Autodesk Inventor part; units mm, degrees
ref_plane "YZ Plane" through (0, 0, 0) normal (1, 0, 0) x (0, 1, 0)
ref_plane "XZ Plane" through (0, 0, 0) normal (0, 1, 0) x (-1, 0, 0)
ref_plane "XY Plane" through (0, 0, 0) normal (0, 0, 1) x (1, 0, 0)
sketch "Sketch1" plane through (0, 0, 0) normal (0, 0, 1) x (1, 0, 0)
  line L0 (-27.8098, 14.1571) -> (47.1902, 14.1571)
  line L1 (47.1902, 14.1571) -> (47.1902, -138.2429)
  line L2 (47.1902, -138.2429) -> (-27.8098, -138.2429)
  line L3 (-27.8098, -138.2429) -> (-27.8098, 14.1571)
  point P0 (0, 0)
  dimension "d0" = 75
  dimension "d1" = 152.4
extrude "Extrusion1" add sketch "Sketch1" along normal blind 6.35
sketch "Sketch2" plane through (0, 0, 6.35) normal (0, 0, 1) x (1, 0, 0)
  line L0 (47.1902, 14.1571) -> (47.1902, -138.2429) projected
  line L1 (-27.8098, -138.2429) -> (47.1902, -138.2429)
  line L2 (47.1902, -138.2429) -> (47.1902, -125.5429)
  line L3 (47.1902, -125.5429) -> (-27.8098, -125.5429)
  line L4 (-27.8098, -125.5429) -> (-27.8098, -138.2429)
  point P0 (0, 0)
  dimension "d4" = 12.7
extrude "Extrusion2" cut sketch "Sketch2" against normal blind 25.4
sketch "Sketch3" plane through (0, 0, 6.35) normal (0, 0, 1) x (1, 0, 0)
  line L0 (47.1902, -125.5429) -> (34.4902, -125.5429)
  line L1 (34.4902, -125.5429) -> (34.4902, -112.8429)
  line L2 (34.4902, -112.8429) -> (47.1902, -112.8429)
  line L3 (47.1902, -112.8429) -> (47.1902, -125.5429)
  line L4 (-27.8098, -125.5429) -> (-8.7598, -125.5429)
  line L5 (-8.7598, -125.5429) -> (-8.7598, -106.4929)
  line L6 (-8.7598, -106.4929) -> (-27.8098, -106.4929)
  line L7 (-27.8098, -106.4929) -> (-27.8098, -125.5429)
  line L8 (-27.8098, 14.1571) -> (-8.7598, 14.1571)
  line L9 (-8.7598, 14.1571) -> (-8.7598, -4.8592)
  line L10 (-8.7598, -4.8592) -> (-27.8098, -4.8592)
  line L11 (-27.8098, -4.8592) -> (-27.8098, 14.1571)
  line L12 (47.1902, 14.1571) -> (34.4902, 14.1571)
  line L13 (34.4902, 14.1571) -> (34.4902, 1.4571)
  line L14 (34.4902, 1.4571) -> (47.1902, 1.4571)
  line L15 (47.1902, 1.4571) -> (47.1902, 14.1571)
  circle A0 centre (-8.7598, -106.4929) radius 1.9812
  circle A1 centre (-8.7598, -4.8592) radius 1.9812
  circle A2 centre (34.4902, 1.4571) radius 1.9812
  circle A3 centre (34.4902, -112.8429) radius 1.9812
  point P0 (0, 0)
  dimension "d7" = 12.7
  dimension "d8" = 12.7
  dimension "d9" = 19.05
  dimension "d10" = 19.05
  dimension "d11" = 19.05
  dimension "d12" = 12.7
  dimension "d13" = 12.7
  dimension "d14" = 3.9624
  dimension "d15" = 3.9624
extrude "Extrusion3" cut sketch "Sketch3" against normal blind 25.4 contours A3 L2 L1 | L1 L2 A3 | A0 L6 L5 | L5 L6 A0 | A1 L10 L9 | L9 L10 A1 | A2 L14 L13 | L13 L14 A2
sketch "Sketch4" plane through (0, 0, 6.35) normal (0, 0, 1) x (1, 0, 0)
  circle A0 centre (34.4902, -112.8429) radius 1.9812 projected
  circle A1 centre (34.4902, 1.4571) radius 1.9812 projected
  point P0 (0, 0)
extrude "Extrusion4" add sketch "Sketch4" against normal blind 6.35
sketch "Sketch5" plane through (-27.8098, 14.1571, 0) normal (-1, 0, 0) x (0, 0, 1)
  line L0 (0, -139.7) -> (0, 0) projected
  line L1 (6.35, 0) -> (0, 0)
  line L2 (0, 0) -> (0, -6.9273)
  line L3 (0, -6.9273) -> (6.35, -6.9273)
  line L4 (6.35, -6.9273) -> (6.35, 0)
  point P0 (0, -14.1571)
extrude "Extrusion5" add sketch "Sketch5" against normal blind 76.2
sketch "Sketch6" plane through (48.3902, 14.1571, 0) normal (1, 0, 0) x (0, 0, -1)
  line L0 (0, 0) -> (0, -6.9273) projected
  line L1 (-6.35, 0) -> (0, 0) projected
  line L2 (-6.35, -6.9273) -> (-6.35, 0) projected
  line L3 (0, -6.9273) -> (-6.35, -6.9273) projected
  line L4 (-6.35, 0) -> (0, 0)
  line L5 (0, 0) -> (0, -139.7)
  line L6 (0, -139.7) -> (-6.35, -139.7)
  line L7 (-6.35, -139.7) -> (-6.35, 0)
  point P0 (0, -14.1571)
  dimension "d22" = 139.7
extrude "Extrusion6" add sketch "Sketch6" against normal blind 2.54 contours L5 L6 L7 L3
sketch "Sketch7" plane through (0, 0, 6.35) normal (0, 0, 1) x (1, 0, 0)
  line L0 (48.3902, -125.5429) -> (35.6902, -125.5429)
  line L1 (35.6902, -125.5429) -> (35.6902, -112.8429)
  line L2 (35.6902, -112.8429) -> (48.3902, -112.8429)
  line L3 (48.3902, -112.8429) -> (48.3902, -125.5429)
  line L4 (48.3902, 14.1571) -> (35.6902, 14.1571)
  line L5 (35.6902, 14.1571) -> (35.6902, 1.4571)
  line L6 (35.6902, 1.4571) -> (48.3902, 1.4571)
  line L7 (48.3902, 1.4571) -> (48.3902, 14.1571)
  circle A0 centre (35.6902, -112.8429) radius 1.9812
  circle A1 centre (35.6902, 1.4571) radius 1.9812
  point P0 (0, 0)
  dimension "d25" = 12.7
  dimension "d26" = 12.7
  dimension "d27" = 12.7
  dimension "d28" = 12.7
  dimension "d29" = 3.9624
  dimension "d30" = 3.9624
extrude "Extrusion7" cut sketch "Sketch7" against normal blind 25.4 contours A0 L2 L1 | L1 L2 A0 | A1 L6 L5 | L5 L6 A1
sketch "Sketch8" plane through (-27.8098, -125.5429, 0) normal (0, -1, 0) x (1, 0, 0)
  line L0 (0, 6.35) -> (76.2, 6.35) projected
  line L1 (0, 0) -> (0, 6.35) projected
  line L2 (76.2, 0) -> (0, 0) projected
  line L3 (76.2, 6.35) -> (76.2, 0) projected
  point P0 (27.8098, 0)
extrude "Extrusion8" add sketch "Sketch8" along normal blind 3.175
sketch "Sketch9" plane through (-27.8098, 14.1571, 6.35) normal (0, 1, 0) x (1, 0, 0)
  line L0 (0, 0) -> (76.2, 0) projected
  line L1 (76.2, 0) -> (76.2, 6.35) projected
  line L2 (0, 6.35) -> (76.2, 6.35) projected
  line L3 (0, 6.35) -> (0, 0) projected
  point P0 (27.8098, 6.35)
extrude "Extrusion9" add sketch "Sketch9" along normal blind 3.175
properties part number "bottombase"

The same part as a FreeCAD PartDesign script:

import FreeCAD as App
import Part
import Sketcher
Q = App.Units.Quantity

doc = App.newDocument("Part")
params = doc.addObject("Spreadsheet::Sheet", "Params")
for row, (alias, value) in enumerate([
    ("sketch1_height", "6 in"),
    ("pad1_length", "0.25 in"),
    ("sketch2_height", "0.5 in"),
    ("pocket1_length", "1 in"),
    ("sketch3_diameter", "0.156 in"),
    ("pocket2_length", "1 in"),
    ("sketch4_diameter", "0.156 in"),
    ("pad2_length", "0.25 in"),
    ("sketch5_height", "0.25 in"),
    ("pad3_length", "3 in"),
    ("sketch6_height", "0.25 in"),
    ("pad4_length", "0.1 in"),
    ("sketch7_diameter", "0.156 in"),
    ("pocket3_length", "1 in"),
    ("sketch8_width", "3 in"),
    ("sketch8_height", "0.25 in"),
    ("pad5_length", "0.125 in"),
    ("sketch9_width", "3 in"),
    ("sketch9_height", "0.25 in"),
    ("pad6_length", "0.125 in"),
], start=1):
    params.set(f"A{row}", alias)
    params.set(f"B{row}", "=" + value)
    params.setAlias(f"B{row}", alias)

body = doc.addObject("PartDesign::Body", "Body")

sketch1 = body.newObject("Sketcher::SketchObject", "Sketch")
sketch1.AttachmentSupport = (doc.getObject("XY_Plane"), [""])
sketch1.MapMode = "FlatFace"
sketch1.addGeometry([
    Part.LineSegment(App.Vector(47, 14, 0), App.Vector(-28, 14, 0)),
    Part.LineSegment(App.Vector(-28, 14, 0), App.Vector(-28, -138, 0)),
    Part.LineSegment(App.Vector(-28, -138, 0), App.Vector(47, -138, 0)),
    Part.LineSegment(App.Vector(47, -138, 0), App.Vector(47, 14, 0)),
], False)
sketch1.addConstraint([
    Sketcher.Constraint("Coincident", 0, 2, 1, 1),
    Sketcher.Constraint("Coincident", 1, 2, 2, 1),
    Sketcher.Constraint("Coincident", 2, 2, 3, 1),
    Sketcher.Constraint("Coincident", 3, 2, 0, 1),
    Sketcher.Constraint("Horizontal", 0),
    Sketcher.Constraint("Vertical", 1),
    Sketcher.Constraint("Horizontal", 2),
    Sketcher.Constraint("Vertical", 3),
    Sketcher.Constraint("DistanceY", 1, 2, 1, 1, Q("6 in")),
    Sketcher.Constraint("DistanceX", 0, 2, 0, 1, 75.0),
    Sketcher.Constraint("DistanceX", 0, 2, -1, 1, 27.8098),
    Sketcher.Constraint("DistanceY", -1, 1, 0, 2, 14.157),
])
sketch1.setExpression("Constraints[8]", "Params.sketch1_height")
pad1 = body.newObject("PartDesign::Pad", "Pad")
pad1.Profile = sketch1
pad1.setExpression("Length", "Params.pad1_length")

sketch2 = body.newObject("Sketcher::SketchObject", "Sketch001")
sketch2.AttachmentSupport = (doc.getObject("XY_Plane"), [""])
sketch2.MapMode = "FlatFace"
sketch2.AttachmentOffset = App.Placement(App.Vector(0, 0, 0.25 * 25.4), App.Rotation())
sketch2.addGeometry([
    Part.LineSegment(App.Vector(47, -138, 0), App.Vector(47, -126, 0)),
    Part.LineSegment(App.Vector(47, -126, 0), App.Vector(-28, -126, 0)),
    Part.LineSegment(App.Vector(-28, -126, 0), App.Vector(-28, -138, 0)),
    Part.LineSegment(App.Vector(-28, -138, 0), App.Vector(47, -138, 0)),
], False)
sketch2.addConstraint([
    Sketcher.Constraint("Coincident", 0, 2, 1, 1),
    Sketcher.Constraint("Coincident", 1, 2, 2, 1),
    Sketcher.Constraint("Coincident", 2, 2, 3, 1),
    Sketcher.Constraint("Coincident", 3, 2, 0, 1),
    Sketcher.Constraint("Vertical", 0),
    Sketcher.Constraint("Horizontal", 1),
    Sketcher.Constraint("Vertical", 2),
    Sketcher.Constraint("Horizontal", 3),
    Sketcher.Constraint("DistanceY", 0, 1, 0, 2, Q("0.5 in")),
    Sketcher.Constraint("DistanceX", 1, 2, 1, 1, 75.0),
    Sketcher.Constraint("DistanceX", -1, 1, 0, 2, 47.1902),
    Sketcher.Constraint("DistanceY", 0, 2, -1, 1, 125.543),
])
sketch2.setExpression("Constraints[8]", "Params.sketch2_height")
pocket1 = body.newObject("PartDesign::Pocket", "Pocket")
pocket1.Profile = sketch2
pocket1.setExpression("Length", "Params.pocket1_length")

sketch3 = body.newObject("Sketcher::SketchObject", "Sketch002")
sketch3.AttachmentSupport = (doc.getObject("XY_Plane"), [""])
sketch3.MapMode = "FlatFace"
sketch3.AttachmentOffset = App.Placement(App.Vector(0, 0, 0.25 * 25.4), App.Rotation())
sketch3.addGeometry([
    Part.Circle(App.Vector(34.5, -112.8, 0), App.Vector(0, 0, 1), 2),
    Part.Circle(App.Vector(-8.8, -106.5, 0), App.Vector(0, 0, 1), 2),
    Part.Circle(App.Vector(-8.8, -4.9, 0), App.Vector(0, 0, 1), 2),
    Part.Circle(App.Vector(34.5, 1.5, 0), App.Vector(0, 0, 1), 2),
], False)
sketch3.addConstraint([
    Sketcher.Constraint("Equal", 0, 1),
    Sketcher.Constraint("Equal", 1, 2),
    Sketcher.Constraint("Equal", 2, 3),
    Sketcher.Constraint("Vertical", 1, 3, 2, 3),
    Sketcher.Constraint("Vertical", 0, 3, 3, 3),
    Sketcher.Constraint("Diameter", 0, Q("0.156 in")),
    Sketcher.Constraint("DistanceY", 0, 3, 3, 3, Q("4.5 in")),
    Sketcher.Constraint("DistanceY", 0, 3, 1, 3, Q("0.25 in")),
    Sketcher.Constraint("DistanceY", 2, 3, -1, 1, Q("0.1913 in")),
    Sketcher.Constraint("DistanceX", -1, 1, 0, 3, 34.4902),
    Sketcher.Constraint("DistanceY", 0, 3, -1, 1, 112.843),
    Sketcher.Constraint("DistanceX", 1, 3, -1, 1, 8.7598),
])
sketch3.setExpression("Constraints[5]", "Params.sketch3_diameter")
pocket2 = body.newObject("PartDesign::Pocket", "Pocket001")
pocket2.Profile = sketch3
pocket2.setExpression("Length", "Params.pocket2_length")

sketch4 = body.newObject("Sketcher::SketchObject", "Sketch003")
sketch4.AttachmentSupport = (doc.getObject("XY_Plane"), [""])
sketch4.MapMode = "FlatFace"
sketch4.AttachmentOffset = App.Placement(App.Vector(0, 0, 0.25 * 25.4), App.Rotation())
sketch4.addGeometry([
    Part.Circle(App.Vector(34.5, -112.8, 0), App.Vector(0, 0, 1), 2),
    Part.Circle(App.Vector(34.5, 1.5, 0), App.Vector(0, 0, 1), 2),
], False)
sketch4.addConstraint([
    Sketcher.Constraint("Equal", 0, 1),
    Sketcher.Constraint("Vertical", 0, 3, 1, 3),
    Sketcher.Constraint("Diameter", 0, Q("0.156 in")),
    Sketcher.Constraint("DistanceY", 0, 3, 1, 3, Q("4.5 in")),
    Sketcher.Constraint("DistanceX", -1, 1, 0, 3, 34.4902),
    Sketcher.Constraint("DistanceY", 0, 3, -1, 1, 112.843),
])
sketch4.setExpression("Constraints[2]", "Params.sketch4_diameter")
pad2 = body.newObject("PartDesign::Pad", "Pad001")
pad2.Profile = sketch4
pad2.setExpression("Length", "Params.pad2_length")
pad2.Reversed = True

sketch5 = body.newObject("Sketcher::SketchObject", "Sketch004")
sketch5.AttachmentSupport = (doc.getObject("YZ_Plane"), [""])
sketch5.MapMode = "FlatFace"
sketch5.AttachmentOffset = App.Placement(App.Vector(0, 0, -27.8098), App.Rotation())
sketch5.addGeometry([
    Part.LineSegment(App.Vector(14, 0, 0), App.Vector(7, 0, 0)),
    Part.LineSegment(App.Vector(7, 0, 0), App.Vector(7, 6, 0)),
    Part.LineSegment(App.Vector(7, 6, 0), App.Vector(14, 6, 0)),
    Part.LineSegment(App.Vector(14, 6, 0), App.Vector(14, 0, 0)),
], False)
sketch5.addConstraint([
    Sketcher.Constraint("Coincident", 0, 2, 1, 1),
    Sketcher.Constraint("Coincident", 1, 2, 2, 1),
    Sketcher.Constraint("Coincident", 2, 2, 3, 1),
    Sketcher.Constraint("Coincident", 3, 2, 0, 1),
    Sketcher.Constraint("Horizontal", 0),
    Sketcher.Constraint("Vertical", 1),
    Sketcher.Constraint("Horizontal", 2),
    Sketcher.Constraint("Vertical", 3),
    Sketcher.Constraint("PointOnObject", 0, 2, -1),
    Sketcher.Constraint("DistanceY", 1, 1, 1, 2, Q("0.25 in")),
    Sketcher.Constraint("DistanceX", 0, 2, 0, 1, 6.9273),
    Sketcher.Constraint("DistanceX", -1, 1, 0, 2, 7.2298),
])
sketch5.setExpression("Constraints[9]", "Params.sketch5_height")
pad3 = body.newObject("PartDesign::Pad", "Pad002")
pad3.Profile = sketch5
pad3.setExpression("Length", "Params.pad3_length")

sketch6 = body.newObject("Sketcher::SketchObject", "Sketch005")
sketch6.AttachmentSupport = (doc.getObject("YZ_Plane"), [""])
sketch6.MapMode = "FlatFace"
sketch6.AttachmentOffset = App.Placement(App.Vector(0, 0, 48.3902), App.Rotation())
sketch6.addGeometry([
    Part.LineSegment(App.Vector(-126, 0, 0), App.Vector(7, 0, 0)),
    Part.LineSegment(App.Vector(7, 0, 0), App.Vector(7, 6, 0)),
    Part.LineSegment(App.Vector(7, 6, 0), App.Vector(-126, 6, 0)),
    Part.LineSegment(App.Vector(-126, 6, 0), App.Vector(-126, 0, 0)),
], False)
sketch6.addConstraint([
    Sketcher.Constraint("Coincident", 0, 2, 1, 1),
    Sketcher.Constraint("Coincident", 1, 2, 2, 1),
    Sketcher.Constraint("Coincident", 2, 2, 3, 1),
    Sketcher.Constraint("Coincident", 3, 2, 0, 1),
    Sketcher.Constraint("Horizontal", 0),
    Sketcher.Constraint("Vertical", 1),
    Sketcher.Constraint("Horizontal", 2),
    Sketcher.Constraint("Vertical", 3),
    Sketcher.Constraint("PointOnObject", 0, 2, -1),
    Sketcher.Constraint("DistanceY", 1, 1, 1, 2, Q("0.25 in")),
    Sketcher.Constraint("DistanceX", 0, 1, 0, 2, 132.7727),
    Sketcher.Constraint("DistanceX", -1, 1, 0, 2, 7.2298),
])
sketch6.setExpression("Constraints[9]", "Params.sketch6_height")
pad4 = body.newObject("PartDesign::Pad", "Pad003")
pad4.Profile = sketch6
pad4.setExpression("Length", "Params.pad4_length")
pad4.Reversed = True

sketch7 = body.newObject("Sketcher::SketchObject", "Sketch006")
sketch7.AttachmentSupport = (doc.getObject("XY_Plane"), [""])
sketch7.MapMode = "FlatFace"
sketch7.AttachmentOffset = App.Placement(App.Vector(0, 0, 0.25 * 25.4), App.Rotation())
sketch7.addGeometry([
    Part.Circle(App.Vector(35.7, -112.8, 0), App.Vector(0, 0, 1), 2),
    Part.Circle(App.Vector(35.7, 1.5, 0), App.Vector(0, 0, 1), 2),
], False)
sketch7.addConstraint([
    Sketcher.Constraint("Equal", 0, 1),
    Sketcher.Constraint("Vertical", 0, 3, 1, 3),
    Sketcher.Constraint("Diameter", 0, Q("0.156 in")),
    Sketcher.Constraint("DistanceY", 0, 3, 1, 3, Q("4.5 in")),
    Sketcher.Constraint("DistanceX", -1, 1, 0, 3, 35.6902),
    Sketcher.Constraint("DistanceY", 0, 3, -1, 1, 112.843),
])
sketch7.setExpression("Constraints[2]", "Params.sketch7_diameter")
pocket3 = body.newObject("PartDesign::Pocket", "Pocket002")
pocket3.Profile = sketch7
pocket3.setExpression("Length", "Params.pocket3_length")

sketch8 = body.newObject("Sketcher::SketchObject", "Sketch007")
sketch8.AttachmentSupport = (doc.getObject("XZ_Plane"), [""])
sketch8.MapMode = "FlatFace"
sketch8.AttachmentOffset = App.Placement(App.Vector(0, 0, 125.5429), App.Rotation())
sketch8.addGeometry([
    Part.LineSegment(App.Vector(48, 6, 0), App.Vector(-28, 6, 0)),
    Part.LineSegment(App.Vector(-28, 6, 0), App.Vector(-28, 0, 0)),
    Part.LineSegment(App.Vector(-28, 0, 0), App.Vector(48, 0, 0)),
    Part.LineSegment(App.Vector(48, 0, 0), App.Vector(48, 6, 0)),
], False)
sketch8.addConstraint([
    Sketcher.Constraint("Coincident", 0, 2, 1, 1),
    Sketcher.Constraint("Coincident", 1, 2, 2, 1),
    Sketcher.Constraint("Coincident", 2, 2, 3, 1),
    Sketcher.Constraint("Coincident", 3, 2, 0, 1),
    Sketcher.Constraint("Horizontal", 0),
    Sketcher.Constraint("Vertical", 1),
    Sketcher.Constraint("Horizontal", 2),
    Sketcher.Constraint("Vertical", 3),
    Sketcher.Constraint("PointOnObject", 1, 2, -1),
    Sketcher.Constraint("DistanceX", 0, 2, 0, 1, Q("3 in")),
    Sketcher.Constraint("DistanceY", 1, 2, 1, 1, Q("0.25 in")),
    Sketcher.Constraint("DistanceX", 0, 2, -1, 1, 27.8098),
])
sketch8.setExpression("Constraints[9]", "Params.sketch8_width")
sketch8.setExpression("Constraints[10]", "Params.sketch8_height")
pad5 = body.newObject("PartDesign::Pad", "Pad004")
pad5.Profile = sketch8
pad5.setExpression("Length", "Params.pad5_length")

sketch9 = body.newObject("Sketcher::SketchObject", "Sketch008")
sketch9.AttachmentSupport = (doc.getObject("XZ_Plane"), [""])
sketch9.MapMode = "FlatFace"
sketch9.AttachmentOffset = App.Placement(App.Vector(0, 0, -14.1571), App.Rotation())
sketch9.addGeometry([
    Part.LineSegment(App.Vector(-28, 0, 0), App.Vector(-28, 6, 0)),
    Part.LineSegment(App.Vector(-28, 6, 0), App.Vector(48, 6, 0)),
    Part.LineSegment(App.Vector(48, 6, 0), App.Vector(48, 0, 0)),
    Part.LineSegment(App.Vector(48, 0, 0), App.Vector(-28, 0, 0)),
], False)
sketch9.addConstraint([
    Sketcher.Constraint("Coincident", 0, 2, 1, 1),
    Sketcher.Constraint("Coincident", 1, 2, 2, 1),
    Sketcher.Constraint("Coincident", 2, 2, 3, 1),
    Sketcher.Constraint("Coincident", 3, 2, 0, 1),
    Sketcher.Constraint("Vertical", 0),
    Sketcher.Constraint("Horizontal", 1),
    Sketcher.Constraint("Vertical", 2),
    Sketcher.Constraint("Horizontal", 3),
    Sketcher.Constraint("PointOnObject", 2, 2, -1),
    Sketcher.Constraint("DistanceX", 1, 1, 1, 2, Q("3 in")),
    Sketcher.Constraint("DistanceY", 0, 1, 0, 2, Q("0.25 in")),
    Sketcher.Constraint("DistanceX", 0, 2, -1, 1, 27.8098),
])
sketch9.setExpression("Constraints[9]", "Params.sketch9_width")
sketch9.setExpression("Constraints[10]", "Params.sketch9_height")
pad6 = body.newObject("PartDesign::Pad", "Pad005")
pad6.Profile = sketch9
pad6.setExpression("Length", "Params.pad6_length")
pad6.Reversed = True

doc.recompute()
